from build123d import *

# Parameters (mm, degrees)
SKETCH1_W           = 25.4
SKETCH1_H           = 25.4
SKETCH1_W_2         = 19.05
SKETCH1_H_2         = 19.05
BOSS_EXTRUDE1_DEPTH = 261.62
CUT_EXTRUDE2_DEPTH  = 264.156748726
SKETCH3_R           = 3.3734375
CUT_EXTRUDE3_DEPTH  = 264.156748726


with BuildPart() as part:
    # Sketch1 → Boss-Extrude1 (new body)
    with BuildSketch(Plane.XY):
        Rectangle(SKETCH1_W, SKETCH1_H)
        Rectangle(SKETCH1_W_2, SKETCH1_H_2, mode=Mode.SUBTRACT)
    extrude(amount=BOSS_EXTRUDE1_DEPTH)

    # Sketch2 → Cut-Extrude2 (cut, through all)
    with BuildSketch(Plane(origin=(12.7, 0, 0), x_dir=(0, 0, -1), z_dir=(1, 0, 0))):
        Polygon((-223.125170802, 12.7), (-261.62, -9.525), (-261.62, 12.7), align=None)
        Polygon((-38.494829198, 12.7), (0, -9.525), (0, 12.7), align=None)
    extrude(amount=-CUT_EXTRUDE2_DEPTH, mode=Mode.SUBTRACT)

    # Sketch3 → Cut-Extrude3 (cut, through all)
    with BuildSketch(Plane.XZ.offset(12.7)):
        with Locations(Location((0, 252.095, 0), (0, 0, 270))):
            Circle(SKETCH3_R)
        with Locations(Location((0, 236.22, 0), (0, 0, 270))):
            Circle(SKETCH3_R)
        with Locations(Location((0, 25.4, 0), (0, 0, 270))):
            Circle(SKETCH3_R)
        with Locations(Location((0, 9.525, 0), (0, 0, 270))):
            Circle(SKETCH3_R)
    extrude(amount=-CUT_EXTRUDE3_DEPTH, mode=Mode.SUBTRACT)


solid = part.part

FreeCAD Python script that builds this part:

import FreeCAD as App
import Part
import Sketcher
Q = App.Units.Quantity

doc = App.newDocument("Part")
body = doc.addObject("PartDesign::Body", "Body")

sketch1 = doc.addObject("Sketcher::SketchObject", "Sketch")
body.addObject(sketch1)
sketch1.AttachmentSupport = (doc.XY_Plane, [""])
sketch1.MapMode = "FlatFace"
sketch1.addGeometry(Part.LineSegment(App.Vector(-13, 13, 0), App.Vector(-13, -13, 0)), False)
sketch1.addGeometry(Part.LineSegment(App.Vector(-13, -13, 0), App.Vector(13, -13, 0)), False)
sketch1.addGeometry(Part.LineSegment(App.Vector(13, -13, 0), App.Vector(13, 13, 0)), False)
sketch1.addGeometry(Part.LineSegment(App.Vector(13, 13, 0), App.Vector(-13, 13, 0)), False)
sketch1.addGeometry(Part.LineSegment(App.Vector(10, -10, 0), App.Vector(-10, -10, 0)), False)
sketch1.addGeometry(Part.LineSegment(App.Vector(-10, -10, 0), App.Vector(-10, 10, 0)), False)
sketch1.addGeometry(Part.LineSegment(App.Vector(-10, 10, 0), App.Vector(10, 10, 0)), False)
sketch1.addGeometry(Part.LineSegment(App.Vector(10, 10, 0), App.Vector(10, -10, 0)), False)
sketch1.addConstraint(Sketcher.Constraint("Coincident", 0, 2, 1, 1))
sketch1.addConstraint(Sketcher.Constraint("Coincident", 1, 2, 2, 1))
sketch1.addConstraint(Sketcher.Constraint("Coincident", 2, 2, 3, 1))
sketch1.addConstraint(Sketcher.Constraint("Coincident", 3, 2, 0, 1))
sketch1.addConstraint(Sketcher.Constraint("Coincident", 4, 2, 5, 1))
sketch1.addConstraint(Sketcher.Constraint("Coincident", 5, 2, 6, 1))
sketch1.addConstraint(Sketcher.Constraint("Coincident", 6, 2, 7, 1))
sketch1.addConstraint(Sketcher.Constraint("Coincident", 7, 2, 4, 1))
sketch1.addConstraint(Sketcher.Constraint("Vertical", 0))
sketch1.addConstraint(Sketcher.Constraint("Horizontal", 1))
sketch1.addConstraint(Sketcher.Constraint("Vertical", 2))
sketch1.addConstraint(Sketcher.Constraint("Horizontal", 3))
sketch1.addConstraint(Sketcher.Constraint("Horizontal", 4))
sketch1.addConstraint(Sketcher.Constraint("Vertical", 5))
sketch1.addConstraint(Sketcher.Constraint("Horizontal", 6))
sketch1.addConstraint(Sketcher.Constraint("Vertical", 7))
sketch1.addConstraint(Sketcher.Constraint("Symmetric", 0, 2, 2, 2, -1, 1))
sketch1.addConstraint(Sketcher.Constraint("Symmetric", 4, 2, 6, 2, -1, 1))
sketch1.addConstraint(Sketcher.Constraint("Equal", 3, 0))
sketch1.addConstraint(Sketcher.Constraint("Equal", 6, 5))
sketch1.addConstraint(Sketcher.Constraint("DistanceX", 1, 1, 1, 2, Q("1 in")))
sketch1.addConstraint(Sketcher.Constraint("DistanceX", 4, 2, 4, 1, Q("0.75 in")))
pad1 = doc.addObject("PartDesign::Pad", "Pad")
body.addObject(pad1)
pad1.Profile = sketch1
pad1.Length = Q("10.3 in")

sketch2 = doc.addObject("Sketcher::SketchObject", "Sketch001")
body.addObject(sketch2)
sketch2.AttachmentSupport = (doc.YZ_Plane, [""])
sketch2.MapMode = "FlatFace"
sketch2.AttachmentOffset = App.Placement(App.Vector(0, 0, 0.5 * 25.4), App.Rotation())
sketch2.addGeometry(Part.LineSegment(App.Vector(-10, 262, 0), App.Vector(13, 223, 0)), False)
sketch2.addGeometry(Part.LineSegment(App.Vector(13, 223, 0), App.Vector(13, 262, 0)), False)
sketch2.addGeometry(Part.LineSegment(App.Vector(13, 262, 0), App.Vector(-10, 262, 0)), False)
sketch2.addGeometry(Part.LineSegment(App.Vector(13, 38, 0), App.Vector(-10, 0, 0)), False)
sketch2.addGeometry(Part.LineSegment(App.Vector(-10, 0, 0), App.Vector(13, 0, 0)), False)
sketch2.addGeometry(Part.LineSegment(App.Vector(13, 0, 0), App.Vector(13, 38, 0)), False)
sketch2.addConstraint(Sketcher.Constraint("Coincident", 0, 2, 1, 1))
sketch2.addConstraint(Sketcher.Constraint("Coincident", 1, 2, 2, 1))
sketch2.addConstraint(Sketcher.Constraint("Coincident", 2, 2, 0, 1))
sketch2.addConstraint(Sketcher.Constraint("Coincident", 3, 2, 4, 1))
sketch2.addConstraint(Sketcher.Constraint("Coincident", 4, 2, 5, 1))
sketch2.addConstraint(Sketcher.Constraint("Coincident", 5, 2, 3, 1))
sketch2.addConstraint(Sketcher.Constraint("Vertical", 1))
sketch2.addConstraint(Sketcher.Constraint("Horizontal", 2))
sketch2.addConstraint(Sketcher.Constraint("Horizontal", 4))
sketch2.addConstraint(Sketcher.Constraint("Vertical", 5))
sketch2.addConstraint(Sketcher.Constraint("PointOnObject", 3, 2, -1))
sketch2.addConstraint(Sketcher.Constraint("Vertical", 2, 2, 3, 2))
sketch2.addConstraint(Sketcher.Constraint("Vertical", 1, 2, 4, 2))
sketch2.addConstraint(Sketcher.Constraint("Equal", 1, 5))
sketch2.addConstraint(Sketcher.Constraint("Angle", 0, Q("-60 deg")))
sketch2.addConstraint(Sketcher.Constraint("DistanceX", -1, 1, 0, 2, Q("0.5 in")))
sketch2.addConstraint(Sketcher.Constraint("DistanceY", -1, 1, 1, 2, Q("10.3 in")))
sketch2.addConstraint(Sketcher.Constraint("Distance", 0, Q("1.75 in")))
pocket1 = doc.addObject("PartDesign::Pocket", "Pocket")
body.addObject(pocket1)
pocket1.Profile = sketch2
pocket1.Type = "ThroughAll"

sketch3 = doc.addObject("Sketcher::SketchObject", "Sketch002")
body.addObject(sketch3)
sketch3.AttachmentSupport = (doc.XZ_Plane, [""])
sketch3.MapMode = "FlatFace"
sketch3.AttachmentOffset = App.Placement(App.Vector(0, 0, 0.5 * 25.4), App.Rotation())
sketch3.addGeometry(Part.Circle(App.Vector(0, 252.1, 0), App.Vector(0, 0, 1), 3.4), False)
sketch3.addGeometry(Part.Circle(App.Vector(0, 236.2, 0), App.Vector(0, 0, 1), 3.4), False)
sketch3.addGeometry(Part.Circle(App.Vector(0, 25.4, 0), App.Vector(0, 0, 1), 3.4), False)
sketch3.addGeometry(Part.Circle(App.Vector(0, 9.5, 0), App.Vector(0, 0, 1), 3.4), False)
sketch3.addConstraint(Sketcher.Constraint("Equal", 0, 1))
sketch3.addConstraint(Sketcher.Constraint("Equal", 1, 2))
sketch3.addConstraint(Sketcher.Constraint("Equal", 2, 3))
sketch3.addConstraint(Sketcher.Constraint("PointOnObject", 0, 3, -2))
sketch3.addConstraint(Sketcher.Constraint("PointOnObject", 1, 3, -2))
sketch3.addConstraint(Sketcher.Constraint("PointOnObject", 2, 3, -2))
sketch3.addConstraint(Sketcher.Constraint("PointOnObject", 3, 3, -2))
sketch3.addConstraint(Sketcher.Constraint("Diameter", 0, Q("0.265625 in")))
sketch3.addConstraint(Sketcher.Constraint("DistanceY", -1, 1, 2, 3, Q("1 in")))
sketch3.addConstraint(Sketcher.Constraint("DistanceY", -1, 1, 1, 3, Q("9.3 in")))
sketch3.addConstraint(Sketcher.Constraint("DistanceY", 3, 3, 0, 3, Q("9.55 in")))
sketch3.addConstraint(Sketcher.Constraint("DistanceY", -1, 1, 0, 3, Q("9.925 in")))
pocket2 = doc.addObject("PartDesign::Pocket", "Pocket001")
body.addObject(pocket2)
pocket2.Profile = sketch3
pocket2.Type = "ThroughAll"

doc.recompute()
